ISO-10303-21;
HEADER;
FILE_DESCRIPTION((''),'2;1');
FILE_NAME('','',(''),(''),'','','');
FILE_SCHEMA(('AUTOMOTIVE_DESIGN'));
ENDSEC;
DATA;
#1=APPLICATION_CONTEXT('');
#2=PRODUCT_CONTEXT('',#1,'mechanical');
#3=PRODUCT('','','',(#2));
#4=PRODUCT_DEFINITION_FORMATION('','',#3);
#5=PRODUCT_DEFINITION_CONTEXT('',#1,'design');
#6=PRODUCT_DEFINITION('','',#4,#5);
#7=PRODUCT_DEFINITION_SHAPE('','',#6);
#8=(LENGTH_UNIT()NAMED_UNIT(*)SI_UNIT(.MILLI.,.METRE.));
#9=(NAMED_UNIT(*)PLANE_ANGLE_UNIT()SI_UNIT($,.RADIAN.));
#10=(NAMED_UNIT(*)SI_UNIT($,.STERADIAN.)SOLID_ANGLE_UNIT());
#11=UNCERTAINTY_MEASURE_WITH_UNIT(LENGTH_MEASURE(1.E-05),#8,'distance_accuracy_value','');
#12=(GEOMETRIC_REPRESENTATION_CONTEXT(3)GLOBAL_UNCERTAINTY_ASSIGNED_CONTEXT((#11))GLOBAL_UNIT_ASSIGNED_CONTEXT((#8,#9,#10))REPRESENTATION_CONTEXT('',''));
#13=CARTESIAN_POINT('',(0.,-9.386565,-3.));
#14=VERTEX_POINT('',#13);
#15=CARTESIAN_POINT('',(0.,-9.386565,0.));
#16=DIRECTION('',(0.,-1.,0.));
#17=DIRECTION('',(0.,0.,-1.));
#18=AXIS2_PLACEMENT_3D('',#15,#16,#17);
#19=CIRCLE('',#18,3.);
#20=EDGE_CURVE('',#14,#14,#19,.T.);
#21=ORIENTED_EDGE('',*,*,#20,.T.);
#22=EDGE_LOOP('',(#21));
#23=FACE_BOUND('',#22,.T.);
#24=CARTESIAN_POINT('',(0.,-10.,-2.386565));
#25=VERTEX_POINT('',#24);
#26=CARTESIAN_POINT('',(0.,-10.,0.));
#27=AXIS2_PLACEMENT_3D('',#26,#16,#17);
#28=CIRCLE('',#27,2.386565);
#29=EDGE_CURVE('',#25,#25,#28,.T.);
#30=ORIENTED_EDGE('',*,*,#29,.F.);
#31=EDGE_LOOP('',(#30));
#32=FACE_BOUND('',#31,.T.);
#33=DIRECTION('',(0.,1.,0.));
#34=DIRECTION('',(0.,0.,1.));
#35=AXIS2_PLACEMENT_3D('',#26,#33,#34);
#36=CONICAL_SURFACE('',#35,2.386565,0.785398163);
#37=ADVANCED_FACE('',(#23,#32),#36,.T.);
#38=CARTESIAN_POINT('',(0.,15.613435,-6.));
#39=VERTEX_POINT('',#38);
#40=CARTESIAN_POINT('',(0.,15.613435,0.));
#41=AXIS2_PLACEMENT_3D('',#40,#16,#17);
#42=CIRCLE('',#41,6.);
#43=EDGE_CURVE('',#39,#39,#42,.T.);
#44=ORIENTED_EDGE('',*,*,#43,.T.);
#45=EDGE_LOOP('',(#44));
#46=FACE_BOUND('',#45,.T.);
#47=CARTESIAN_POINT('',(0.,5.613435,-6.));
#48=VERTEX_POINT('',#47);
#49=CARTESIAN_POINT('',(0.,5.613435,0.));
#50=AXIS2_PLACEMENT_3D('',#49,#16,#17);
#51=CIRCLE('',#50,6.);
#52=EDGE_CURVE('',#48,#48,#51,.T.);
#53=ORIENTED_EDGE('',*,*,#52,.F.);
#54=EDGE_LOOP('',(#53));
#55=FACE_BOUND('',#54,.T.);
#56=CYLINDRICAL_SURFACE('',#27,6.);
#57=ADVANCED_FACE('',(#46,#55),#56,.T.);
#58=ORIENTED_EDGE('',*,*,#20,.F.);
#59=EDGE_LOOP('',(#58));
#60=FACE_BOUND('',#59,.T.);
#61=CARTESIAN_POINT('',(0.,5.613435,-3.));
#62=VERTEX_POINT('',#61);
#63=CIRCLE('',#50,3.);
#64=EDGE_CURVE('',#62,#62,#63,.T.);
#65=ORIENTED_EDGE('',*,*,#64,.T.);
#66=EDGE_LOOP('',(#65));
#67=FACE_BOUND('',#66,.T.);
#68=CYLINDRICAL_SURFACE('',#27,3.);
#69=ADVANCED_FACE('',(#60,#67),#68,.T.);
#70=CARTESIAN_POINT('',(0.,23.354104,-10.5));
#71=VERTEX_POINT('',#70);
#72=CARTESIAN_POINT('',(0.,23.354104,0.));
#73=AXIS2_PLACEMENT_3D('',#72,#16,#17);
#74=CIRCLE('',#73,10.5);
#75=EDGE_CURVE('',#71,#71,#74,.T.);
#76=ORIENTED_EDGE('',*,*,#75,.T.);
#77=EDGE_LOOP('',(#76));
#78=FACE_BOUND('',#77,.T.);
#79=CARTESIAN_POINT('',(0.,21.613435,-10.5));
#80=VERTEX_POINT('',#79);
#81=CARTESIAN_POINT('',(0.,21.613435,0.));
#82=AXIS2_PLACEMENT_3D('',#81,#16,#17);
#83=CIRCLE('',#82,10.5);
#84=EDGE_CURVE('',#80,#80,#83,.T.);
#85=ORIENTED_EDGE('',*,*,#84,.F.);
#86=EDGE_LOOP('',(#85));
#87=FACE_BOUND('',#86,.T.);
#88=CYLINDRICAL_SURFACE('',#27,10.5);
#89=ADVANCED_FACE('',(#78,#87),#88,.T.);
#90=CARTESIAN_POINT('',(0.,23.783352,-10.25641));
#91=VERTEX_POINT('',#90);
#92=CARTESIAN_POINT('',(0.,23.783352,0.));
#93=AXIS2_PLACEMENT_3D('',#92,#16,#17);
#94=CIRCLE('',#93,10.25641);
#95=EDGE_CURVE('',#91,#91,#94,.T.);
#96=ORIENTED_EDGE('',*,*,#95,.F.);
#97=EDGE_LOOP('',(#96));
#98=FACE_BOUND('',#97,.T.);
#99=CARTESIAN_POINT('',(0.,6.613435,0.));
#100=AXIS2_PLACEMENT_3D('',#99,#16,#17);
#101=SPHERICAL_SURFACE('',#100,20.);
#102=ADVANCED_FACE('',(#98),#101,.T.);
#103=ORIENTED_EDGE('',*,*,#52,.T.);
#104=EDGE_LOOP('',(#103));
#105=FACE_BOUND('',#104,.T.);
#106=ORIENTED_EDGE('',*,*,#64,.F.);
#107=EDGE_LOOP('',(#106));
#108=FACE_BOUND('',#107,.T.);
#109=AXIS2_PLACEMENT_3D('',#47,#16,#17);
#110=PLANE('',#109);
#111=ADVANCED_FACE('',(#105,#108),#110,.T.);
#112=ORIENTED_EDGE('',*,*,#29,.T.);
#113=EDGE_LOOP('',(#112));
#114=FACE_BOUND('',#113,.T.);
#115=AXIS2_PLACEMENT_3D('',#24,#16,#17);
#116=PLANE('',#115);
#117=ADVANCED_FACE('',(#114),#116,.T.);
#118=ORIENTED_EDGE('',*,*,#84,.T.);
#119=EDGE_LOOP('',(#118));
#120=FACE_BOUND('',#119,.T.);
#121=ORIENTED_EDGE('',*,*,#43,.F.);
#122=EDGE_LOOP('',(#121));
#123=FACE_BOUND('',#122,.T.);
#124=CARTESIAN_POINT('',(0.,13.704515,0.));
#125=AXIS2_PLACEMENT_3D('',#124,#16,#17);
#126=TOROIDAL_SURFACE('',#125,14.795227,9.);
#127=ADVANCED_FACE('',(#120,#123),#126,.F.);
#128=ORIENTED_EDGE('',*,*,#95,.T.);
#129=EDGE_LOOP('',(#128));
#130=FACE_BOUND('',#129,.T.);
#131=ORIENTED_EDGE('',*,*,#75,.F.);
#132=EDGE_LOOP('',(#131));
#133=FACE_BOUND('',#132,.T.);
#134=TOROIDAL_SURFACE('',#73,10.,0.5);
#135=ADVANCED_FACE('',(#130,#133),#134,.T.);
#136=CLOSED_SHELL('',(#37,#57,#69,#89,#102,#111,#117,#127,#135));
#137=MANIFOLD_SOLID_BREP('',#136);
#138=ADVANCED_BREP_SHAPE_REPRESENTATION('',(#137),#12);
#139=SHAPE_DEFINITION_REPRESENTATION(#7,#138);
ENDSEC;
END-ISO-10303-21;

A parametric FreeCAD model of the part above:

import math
import FreeCAD as App
import Part
import Sketcher
from FreeCAD import Vector
Q = App.Units.Quantity

doc = App.newDocument("Part")
body = doc.addObject("PartDesign::Body", "Body")

# Sketch on YZ plane
sketch1 = body.newObject("Sketcher::SketchObject", "Sketch")
sketch1.AttachmentSupport = (doc.getObject("YZ_Plane"), [""])
sketch1.MapMode = "FlatFace"
sketch1.addGeometry([
    Part.LineSegment(Vector(21.61, -10.5, 0), Vector(23.35, -10.5, 0)),  # 0
    Part.ArcOfCircle(Part.Circle(Vector(23.35, -10, 0), Vector(0, 0, 1), 0.5), math.radians(-90), math.radians(-31)),  # 1
    Part.ArcOfCircle(Part.Circle(Vector(6.61, 0, 0), Vector(0, 0, 1), 20), math.radians(-31), math.radians(0)),  # 2
    Part.LineSegment(Vector(26.61, 0, 0), Vector(-10, 0, 0)),  # 3
    Part.LineSegment(Vector(-10, 0, 0), Vector(-10, -2.39, 0)),  # 4
    Part.LineSegment(Vector(-10, -2.39, 0), Vector(-9.39, -3, 0)),  # 5
    Part.LineSegment(Vector(-9.39, -3, 0), Vector(5.61, -3, 0)),  # 6
    Part.LineSegment(Vector(5.61, -3, 0), Vector(5.61, -6, 0)),  # 7
    Part.LineSegment(Vector(5.61, -6, 0), Vector(15.61, -6, 0)),  # 8
    Part.ArcOfCircle(Part.Circle(Vector(13.7, -14.8, 0), Vector(0, 0, 1), 9), math.radians(29), math.radians(78)),  # 9
], False)
sketch1.addConstraint([
    Sketcher.Constraint("Tangent", 0, 2, 1, 1),
    Sketcher.Constraint("Tangent", 1, 2, 2, 1),
    Sketcher.Constraint("Coincident", 2, 2, 3, 1),
    Sketcher.Constraint("Coincident", 3, 2, 4, 1),
    Sketcher.Constraint("Coincident", 4, 2, 5, 1),
    Sketcher.Constraint("Coincident", 5, 2, 6, 1),
    Sketcher.Constraint("Coincident", 6, 2, 7, 1),
    Sketcher.Constraint("Coincident", 7, 2, 8, 1),
    Sketcher.Constraint("Coincident", 8, 2, 9, 2),
    Sketcher.Constraint("Coincident", 9, 1, 0, 1),
    Sketcher.Constraint("Horizontal", 0),
    Sketcher.Constraint("Horizontal", 3),
    Sketcher.Constraint("Vertical", 4),
    Sketcher.Constraint("Horizontal", 6),
    Sketcher.Constraint("Vertical", 7),
    Sketcher.Constraint("Horizontal", 8),
    Sketcher.Constraint("PointOnObject", 2, 3, -1),
    Sketcher.Constraint("PointOnObject", 2, 2, -1),
    Sketcher.Constraint("Radius", 2, Q("20 mm")),
    Sketcher.Constraint("Radius", 9, Q("9 mm")),
    Sketcher.Constraint("Radius", 1, Q("0.5 mm")),
    Sketcher.Constraint("DistanceX", 6, 1, 6, 2, Q("15 mm")),
    Sketcher.Constraint("DistanceX", 8, 1, 8, 2, Q("10 mm")),
    Sketcher.Constraint("DistanceY", 7, 2, 7, 1, Q("3 mm")),
    Sketcher.Constraint("Angle", 5, Q("-45 deg")),
    Sketcher.Constraint("DistanceY", 1, 3, -1, 1, Q("10 mm")),
    Sketcher.Constraint("DistanceX", 3, 2, -1, 1, Q("10 mm")),
    Sketcher.Constraint("DistanceY", 5, 2, -1, 1, Q("3 mm")),
    Sketcher.Constraint("DistanceX", 5, 2, 2, 3, Q("16 mm")),
    Sketcher.Constraint("DistanceX", 8, 2, 9, 1, Q("6 mm")),
    Sketcher.Constraint("Distance", 5, Q("0.867528 mm")),
])
revolution = body.newObject("PartDesign::Revolution", "Revolution")
revolution.Profile = sketch1
revolution.ReferenceAxis = (sketch1, ["H_Axis"])
revolution.Angle = 360

doc.recompute()
